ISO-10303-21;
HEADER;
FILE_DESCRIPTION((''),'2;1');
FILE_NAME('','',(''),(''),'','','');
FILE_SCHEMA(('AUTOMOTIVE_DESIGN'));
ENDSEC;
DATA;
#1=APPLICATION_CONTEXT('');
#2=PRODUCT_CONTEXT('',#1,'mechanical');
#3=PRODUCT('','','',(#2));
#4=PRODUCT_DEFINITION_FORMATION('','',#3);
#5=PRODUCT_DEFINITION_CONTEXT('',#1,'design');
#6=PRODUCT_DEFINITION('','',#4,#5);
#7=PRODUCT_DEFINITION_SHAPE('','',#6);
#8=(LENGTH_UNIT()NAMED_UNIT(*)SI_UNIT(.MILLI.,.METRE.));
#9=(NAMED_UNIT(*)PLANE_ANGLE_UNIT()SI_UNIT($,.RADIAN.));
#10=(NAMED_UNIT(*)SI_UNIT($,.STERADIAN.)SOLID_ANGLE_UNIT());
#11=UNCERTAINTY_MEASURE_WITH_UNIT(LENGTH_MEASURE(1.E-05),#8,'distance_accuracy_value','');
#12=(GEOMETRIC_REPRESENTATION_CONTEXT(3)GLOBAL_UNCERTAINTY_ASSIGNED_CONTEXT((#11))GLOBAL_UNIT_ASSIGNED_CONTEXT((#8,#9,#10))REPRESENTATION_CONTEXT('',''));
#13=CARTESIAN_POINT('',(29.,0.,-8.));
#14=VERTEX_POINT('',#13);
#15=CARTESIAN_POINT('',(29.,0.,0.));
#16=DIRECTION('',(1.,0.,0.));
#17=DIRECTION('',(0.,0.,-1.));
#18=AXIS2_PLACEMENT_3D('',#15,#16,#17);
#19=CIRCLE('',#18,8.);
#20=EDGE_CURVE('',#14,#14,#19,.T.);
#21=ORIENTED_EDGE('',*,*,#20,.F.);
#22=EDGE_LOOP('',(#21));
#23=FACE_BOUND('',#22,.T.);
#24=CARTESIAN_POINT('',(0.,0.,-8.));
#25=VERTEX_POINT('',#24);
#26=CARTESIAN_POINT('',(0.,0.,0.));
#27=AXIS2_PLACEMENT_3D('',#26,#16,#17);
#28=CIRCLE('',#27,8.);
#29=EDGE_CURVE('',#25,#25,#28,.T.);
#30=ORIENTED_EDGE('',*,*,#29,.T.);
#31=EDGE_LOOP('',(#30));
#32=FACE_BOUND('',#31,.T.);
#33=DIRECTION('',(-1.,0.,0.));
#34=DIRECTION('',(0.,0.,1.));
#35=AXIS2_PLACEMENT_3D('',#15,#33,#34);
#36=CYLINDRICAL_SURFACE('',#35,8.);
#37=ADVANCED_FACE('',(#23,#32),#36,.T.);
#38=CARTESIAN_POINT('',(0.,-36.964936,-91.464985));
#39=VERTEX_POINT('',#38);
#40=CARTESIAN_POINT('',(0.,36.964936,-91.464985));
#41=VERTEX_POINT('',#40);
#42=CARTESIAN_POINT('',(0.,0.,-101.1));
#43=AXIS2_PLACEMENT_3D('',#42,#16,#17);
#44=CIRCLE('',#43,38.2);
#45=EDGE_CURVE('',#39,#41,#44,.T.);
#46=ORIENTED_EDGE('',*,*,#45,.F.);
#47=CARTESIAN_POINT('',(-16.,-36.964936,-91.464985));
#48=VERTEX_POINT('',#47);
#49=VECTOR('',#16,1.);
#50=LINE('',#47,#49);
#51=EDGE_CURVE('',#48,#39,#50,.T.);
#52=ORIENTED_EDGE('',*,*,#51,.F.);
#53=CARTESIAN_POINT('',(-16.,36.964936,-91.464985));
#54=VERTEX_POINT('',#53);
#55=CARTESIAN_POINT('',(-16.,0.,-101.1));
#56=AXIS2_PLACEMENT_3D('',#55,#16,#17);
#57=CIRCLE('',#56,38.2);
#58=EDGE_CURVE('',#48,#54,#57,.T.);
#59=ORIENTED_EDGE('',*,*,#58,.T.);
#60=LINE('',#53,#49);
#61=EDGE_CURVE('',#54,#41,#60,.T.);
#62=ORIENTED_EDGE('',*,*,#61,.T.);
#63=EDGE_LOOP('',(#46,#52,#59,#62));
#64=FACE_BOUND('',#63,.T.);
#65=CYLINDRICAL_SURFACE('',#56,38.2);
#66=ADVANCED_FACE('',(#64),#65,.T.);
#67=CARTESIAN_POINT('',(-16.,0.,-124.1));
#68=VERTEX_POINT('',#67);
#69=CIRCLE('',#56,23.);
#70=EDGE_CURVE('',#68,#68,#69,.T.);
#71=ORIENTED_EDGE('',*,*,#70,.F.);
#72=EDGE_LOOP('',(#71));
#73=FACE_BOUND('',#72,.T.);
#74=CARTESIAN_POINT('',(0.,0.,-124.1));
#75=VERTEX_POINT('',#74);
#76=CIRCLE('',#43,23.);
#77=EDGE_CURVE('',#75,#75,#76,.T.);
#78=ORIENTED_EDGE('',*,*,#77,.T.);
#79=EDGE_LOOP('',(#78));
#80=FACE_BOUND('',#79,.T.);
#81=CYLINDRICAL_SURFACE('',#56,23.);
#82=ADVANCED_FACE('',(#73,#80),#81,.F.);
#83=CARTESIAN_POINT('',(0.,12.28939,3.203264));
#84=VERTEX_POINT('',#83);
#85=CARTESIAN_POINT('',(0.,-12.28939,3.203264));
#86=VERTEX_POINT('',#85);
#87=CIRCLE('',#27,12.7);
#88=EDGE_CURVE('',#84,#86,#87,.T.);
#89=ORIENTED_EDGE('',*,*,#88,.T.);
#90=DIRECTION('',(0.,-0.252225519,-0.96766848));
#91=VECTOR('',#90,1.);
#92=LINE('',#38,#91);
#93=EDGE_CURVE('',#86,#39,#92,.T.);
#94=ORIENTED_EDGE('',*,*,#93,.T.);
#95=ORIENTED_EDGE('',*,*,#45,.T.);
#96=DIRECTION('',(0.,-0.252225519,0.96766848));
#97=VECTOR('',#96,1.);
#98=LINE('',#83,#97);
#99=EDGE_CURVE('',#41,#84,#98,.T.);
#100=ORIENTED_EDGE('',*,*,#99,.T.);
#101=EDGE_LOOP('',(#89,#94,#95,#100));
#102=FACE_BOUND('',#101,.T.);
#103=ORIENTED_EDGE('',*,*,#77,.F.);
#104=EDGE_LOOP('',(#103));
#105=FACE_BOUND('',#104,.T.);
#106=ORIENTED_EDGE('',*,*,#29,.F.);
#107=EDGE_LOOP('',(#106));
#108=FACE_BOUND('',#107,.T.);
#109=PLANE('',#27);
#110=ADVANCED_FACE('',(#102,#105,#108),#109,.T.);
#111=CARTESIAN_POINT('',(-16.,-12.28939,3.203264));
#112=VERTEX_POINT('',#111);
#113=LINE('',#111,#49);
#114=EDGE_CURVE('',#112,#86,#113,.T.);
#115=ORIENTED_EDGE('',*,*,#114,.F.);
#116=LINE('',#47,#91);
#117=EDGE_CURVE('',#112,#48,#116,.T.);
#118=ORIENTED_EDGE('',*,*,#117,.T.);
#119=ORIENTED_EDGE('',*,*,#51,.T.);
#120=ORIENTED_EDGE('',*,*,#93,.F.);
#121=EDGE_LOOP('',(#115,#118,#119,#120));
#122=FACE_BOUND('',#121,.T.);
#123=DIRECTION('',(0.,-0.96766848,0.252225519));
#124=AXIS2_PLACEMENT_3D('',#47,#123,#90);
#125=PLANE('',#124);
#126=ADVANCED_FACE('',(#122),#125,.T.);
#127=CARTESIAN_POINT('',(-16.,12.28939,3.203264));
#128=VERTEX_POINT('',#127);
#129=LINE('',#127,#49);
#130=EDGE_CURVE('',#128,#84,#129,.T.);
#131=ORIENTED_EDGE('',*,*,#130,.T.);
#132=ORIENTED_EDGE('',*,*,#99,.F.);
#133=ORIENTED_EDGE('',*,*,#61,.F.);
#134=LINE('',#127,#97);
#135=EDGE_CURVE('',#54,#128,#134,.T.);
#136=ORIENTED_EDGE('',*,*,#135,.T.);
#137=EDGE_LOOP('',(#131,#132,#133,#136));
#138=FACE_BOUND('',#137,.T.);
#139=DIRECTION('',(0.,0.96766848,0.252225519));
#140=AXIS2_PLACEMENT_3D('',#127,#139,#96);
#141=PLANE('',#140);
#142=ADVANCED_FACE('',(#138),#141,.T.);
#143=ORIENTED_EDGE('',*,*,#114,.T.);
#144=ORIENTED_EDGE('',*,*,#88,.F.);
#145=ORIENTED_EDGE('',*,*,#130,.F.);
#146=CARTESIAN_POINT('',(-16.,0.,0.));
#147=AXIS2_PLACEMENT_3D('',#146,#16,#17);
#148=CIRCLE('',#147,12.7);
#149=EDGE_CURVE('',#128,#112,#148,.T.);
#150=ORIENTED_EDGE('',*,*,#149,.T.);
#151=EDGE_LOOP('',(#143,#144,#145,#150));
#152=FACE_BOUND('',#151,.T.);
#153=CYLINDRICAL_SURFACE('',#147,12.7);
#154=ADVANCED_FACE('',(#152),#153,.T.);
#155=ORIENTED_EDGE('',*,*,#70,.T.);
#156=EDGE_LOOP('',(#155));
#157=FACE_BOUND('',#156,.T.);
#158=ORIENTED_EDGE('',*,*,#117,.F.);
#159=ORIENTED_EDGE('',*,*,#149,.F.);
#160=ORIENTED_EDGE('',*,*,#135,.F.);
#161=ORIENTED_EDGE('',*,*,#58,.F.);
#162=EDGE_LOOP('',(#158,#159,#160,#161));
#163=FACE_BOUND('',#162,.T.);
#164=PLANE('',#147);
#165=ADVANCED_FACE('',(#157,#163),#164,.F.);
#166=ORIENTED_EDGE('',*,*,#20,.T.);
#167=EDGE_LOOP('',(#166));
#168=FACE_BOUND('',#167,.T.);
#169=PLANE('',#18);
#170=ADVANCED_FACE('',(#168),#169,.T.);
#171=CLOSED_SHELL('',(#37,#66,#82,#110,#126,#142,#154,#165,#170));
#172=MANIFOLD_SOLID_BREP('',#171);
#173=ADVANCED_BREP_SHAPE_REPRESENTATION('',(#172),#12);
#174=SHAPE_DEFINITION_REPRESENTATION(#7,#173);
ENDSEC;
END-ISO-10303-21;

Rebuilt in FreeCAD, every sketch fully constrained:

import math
import FreeCAD as App
import Part
import Sketcher
from FreeCAD import Vector
Q = App.Units.Quantity

doc = App.newDocument("Part")
body = doc.addObject("PartDesign::Body", "Body")

# Sketch on YZ plane
sketch1 = body.newObject("Sketcher::SketchObject", "Sketch")
sketch1.AttachmentSupport = (doc.getObject("YZ_Plane"), [""])
sketch1.MapMode = "FlatFace"
sketch1.addGeometry(Part.LineSegment(Vector(37, -91, 0), Vector(12, 3, 0)), False)
sketch1.addGeometry(Part.ArcOfCircle(Part.Circle(Vector(0, 0, 0), Vector(0, 0, 1), 13), math.radians(15), math.radians(165)), False)
sketch1.addGeometry(Part.LineSegment(Vector(-12, 3, 0), Vector(-37, -91, 0)), False)
sketch1.addGeometry(Part.ArcOfCircle(Part.Circle(Vector(0, -101, 0), Vector(0, 0, 1), 38), math.radians(165), math.radians(375)), False)
sketch1.addConstraint(Sketcher.Constraint("Tangent", 0, 2, 1, 1))
sketch1.addConstraint(Sketcher.Constraint("Tangent", 1, 2, 2, 1))
sketch1.addConstraint(Sketcher.Constraint("Tangent", 2, 2, 3, 1))
sketch1.addConstraint(Sketcher.Constraint("Tangent", 3, 2, 0, 1))
sketch1.addConstraint(Sketcher.Constraint("Coincident", 1, 3, -1, 1))
sketch1.addConstraint(Sketcher.Constraint("PointOnObject", 3, 3, -2))
sketch1.addConstraint(Sketcher.Constraint("Radius", 1, Q("12.7 mm")))
sketch1.addConstraint(Sketcher.Constraint("Radius", 3, Q("38.2 mm")))
sketch1.addConstraint(Sketcher.Constraint("DistanceY", 3, 3, -1, 1, Q("101.1 mm")))
pad1 = body.newObject("PartDesign::Pad", "Pad")
pad1.Profile = sketch1
pad1.Length = 16
pad1.Reversed = True

# Sketch on YZ plane
sketch2 = body.newObject("Sketcher::SketchObject", "Sketch001")
sketch2.AttachmentSupport = (doc.getObject("YZ_Plane"), [""])
sketch2.MapMode = "FlatFace"
sketch2.addGeometry(Part.Circle(Vector(0, 0, 0), Vector(0, 0, 1), 8), False)
sketch2.addConstraint(Sketcher.Constraint("Coincident", 0, 3, -1, 1))
sketch2.addConstraint(Sketcher.Constraint("Diameter", 0, Q("16 mm")))
pad2 = body.newObject("PartDesign::Pad", "Pad001")
pad2.Profile = sketch2
pad2.Length = 29

# Sketch on YZ plane
sketch3 = body.newObject("Sketcher::SketchObject", "Sketch002")
sketch3.AttachmentSupport = (doc.getObject("YZ_Plane"), [""])
sketch3.MapMode = "FlatFace"
sketch3.addGeometry(Part.Circle(Vector(0, -101, 0), Vector(0, 0, 1), 23), False)
sketch3.addConstraint(Sketcher.Constraint("PointOnObject", 0, 3, -2))
sketch3.addConstraint(Sketcher.Constraint("Diameter", 0, Q("46 mm")))
sketch3.addConstraint(Sketcher.Constraint("DistanceY", 0, 3, -1, 1, Q("101.1 mm")))
pocket1 = body.newObject("PartDesign::Pocket", "Pocket")
pocket1.Profile = sketch3
pocket1.Length = 16

doc.recompute()
